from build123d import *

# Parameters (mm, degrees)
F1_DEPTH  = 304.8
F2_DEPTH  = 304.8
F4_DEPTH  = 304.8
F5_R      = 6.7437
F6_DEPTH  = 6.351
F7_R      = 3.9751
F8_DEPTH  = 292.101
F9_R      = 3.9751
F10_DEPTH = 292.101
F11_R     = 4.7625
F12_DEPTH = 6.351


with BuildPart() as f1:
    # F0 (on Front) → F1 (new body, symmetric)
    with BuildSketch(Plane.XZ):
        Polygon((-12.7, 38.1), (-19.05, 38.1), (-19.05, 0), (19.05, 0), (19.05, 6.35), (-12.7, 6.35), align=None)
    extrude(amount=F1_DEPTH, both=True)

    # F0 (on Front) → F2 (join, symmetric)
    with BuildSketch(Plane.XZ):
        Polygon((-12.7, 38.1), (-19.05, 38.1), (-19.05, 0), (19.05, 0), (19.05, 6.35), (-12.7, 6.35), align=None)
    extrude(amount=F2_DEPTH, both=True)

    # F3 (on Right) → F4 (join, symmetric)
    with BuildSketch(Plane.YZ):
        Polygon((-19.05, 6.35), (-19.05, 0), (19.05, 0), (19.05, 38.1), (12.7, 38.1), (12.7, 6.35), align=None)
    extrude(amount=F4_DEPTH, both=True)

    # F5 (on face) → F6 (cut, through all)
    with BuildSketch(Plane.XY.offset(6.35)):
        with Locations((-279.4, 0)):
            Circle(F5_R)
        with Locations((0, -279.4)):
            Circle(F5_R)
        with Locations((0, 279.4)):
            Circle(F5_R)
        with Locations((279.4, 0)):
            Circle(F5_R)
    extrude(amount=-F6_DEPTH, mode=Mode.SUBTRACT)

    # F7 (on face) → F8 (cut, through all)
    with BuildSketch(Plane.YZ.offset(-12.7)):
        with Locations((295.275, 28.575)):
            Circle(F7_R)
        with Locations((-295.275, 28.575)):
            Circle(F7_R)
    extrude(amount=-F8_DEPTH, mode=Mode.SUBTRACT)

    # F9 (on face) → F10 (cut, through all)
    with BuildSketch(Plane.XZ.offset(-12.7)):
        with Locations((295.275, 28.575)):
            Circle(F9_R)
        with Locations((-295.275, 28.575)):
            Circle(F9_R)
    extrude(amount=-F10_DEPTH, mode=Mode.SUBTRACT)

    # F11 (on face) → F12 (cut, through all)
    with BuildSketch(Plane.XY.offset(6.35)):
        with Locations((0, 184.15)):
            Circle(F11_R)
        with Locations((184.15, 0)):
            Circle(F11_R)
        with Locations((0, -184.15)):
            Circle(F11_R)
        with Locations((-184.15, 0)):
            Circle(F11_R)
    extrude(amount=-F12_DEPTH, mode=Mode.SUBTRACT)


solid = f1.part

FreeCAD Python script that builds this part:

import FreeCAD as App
import Part
import Sketcher
from FreeCAD import Vector
Q = App.Units.Quantity

doc = App.newDocument("Part")
body = doc.addObject("PartDesign::Body", "Body")

# Sketch on XZ plane
sketch1 = body.newObject("Sketcher::SketchObject", "Sketch")
sketch1.AttachmentSupport = (doc.getObject("XZ_Plane"), [""])
sketch1.MapMode = "FlatFace"
sketch1.addGeometry([
    Part.LineSegment(Vector(-12.7, 38.1, 0), Vector(-19.05, 38.1, 0)),  # 0
    Part.LineSegment(Vector(-19.05, 38.1, 0), Vector(-19.05, 0, 0)),  # 1
    Part.LineSegment(Vector(-19.05, 0, 0), Vector(19.05, 0, 0)),  # 2
    Part.LineSegment(Vector(19.05, 0, 0), Vector(19.05, 6.35, 0)),  # 3
    Part.LineSegment(Vector(19.05, 6.35, 0), Vector(-12.7, 6.35, 0)),  # 4
    Part.LineSegment(Vector(-12.7, 6.35, 0), Vector(-12.7, 38.1, 0)),  # 5
], False)
sketch1.addConstraint([
    Sketcher.Constraint("Coincident", 0, 2, 1, 1),
    Sketcher.Constraint("Coincident", 1, 2, 2, 1),
    Sketcher.Constraint("Coincident", 2, 2, 3, 1),
    Sketcher.Constraint("Coincident", 3, 2, 4, 1),
    Sketcher.Constraint("Coincident", 4, 2, 5, 1),
    Sketcher.Constraint("Coincident", 5, 2, 0, 1),
    Sketcher.Constraint("Horizontal", 0),
    Sketcher.Constraint("Vertical", 1),
    Sketcher.Constraint("Horizontal", 2),
    Sketcher.Constraint("Vertical", 3),
    Sketcher.Constraint("Horizontal", 4),
    Sketcher.Constraint("Vertical", 5),
    Sketcher.Constraint("Symmetric", 1, 2, 2, 2, -1, 1),
    Sketcher.Constraint("Equal", 2, 1),
    Sketcher.Constraint("Equal", 0, 3),
    Sketcher.Constraint("DistanceX", 2, 1, 2, 2, Q("1.5 in")),
    Sketcher.Constraint("DistanceX", 0, 2, 0, 1, Q("0.25 in")),
])
pad1 = body.newObject("PartDesign::Pad", "Pad")
pad1.Profile = sketch1
pad1.Length = Q("24 in")
pad1.Midplane = True

# Sketch on XZ plane
sketch2 = body.newObject("Sketcher::SketchObject", "Sketch001")
sketch2.AttachmentSupport = (doc.getObject("XZ_Plane"), [""])
sketch2.MapMode = "FlatFace"
sketch2.addGeometry([
    Part.LineSegment(Vector(-12.7, 38.1, 0), Vector(-19.05, 38.1, 0)),  # 0
    Part.LineSegment(Vector(-19.05, 38.1, 0), Vector(-19.05, 0, 0)),  # 1
    Part.LineSegment(Vector(-19.05, 0, 0), Vector(19.05, 0, 0)),  # 2
    Part.LineSegment(Vector(19.05, 0, 0), Vector(19.05, 6.35, 0)),  # 3
    Part.LineSegment(Vector(19.05, 6.35, 0), Vector(-12.7, 6.35, 0)),  # 4
    Part.LineSegment(Vector(-12.7, 6.35, 0), Vector(-12.7, 38.1, 0)),  # 5
], False)
sketch2.addConstraint([
    Sketcher.Constraint("Coincident", 0, 2, 1, 1),
    Sketcher.Constraint("Coincident", 1, 2, 2, 1),
    Sketcher.Constraint("Coincident", 2, 2, 3, 1),
    Sketcher.Constraint("Coincident", 3, 2, 4, 1),
    Sketcher.Constraint("Coincident", 4, 2, 5, 1),
    Sketcher.Constraint("Coincident", 5, 2, 0, 1),
    Sketcher.Constraint("Horizontal", 0),
    Sketcher.Constraint("Vertical", 1),
    Sketcher.Constraint("Horizontal", 2),
    Sketcher.Constraint("Vertical", 3),
    Sketcher.Constraint("Horizontal", 4),
    Sketcher.Constraint("Vertical", 5),
    Sketcher.Constraint("Symmetric", 1, 2, 2, 2, -1, 1),
    Sketcher.Constraint("Equal", 2, 1),
    Sketcher.Constraint("Equal", 0, 3),
    Sketcher.Constraint("DistanceX", 2, 1, 2, 2, Q("1.5 in")),
    Sketcher.Constraint("DistanceX", 0, 2, 0, 1, Q("0.25 in")),
])
pad2 = body.newObject("PartDesign::Pad", "Pad001")
pad2.Profile = sketch2
pad2.Length = Q("24 in")
pad2.Midplane = True

# Sketch on YZ plane
sketch3 = body.newObject("Sketcher::SketchObject", "Sketch002")
sketch3.AttachmentSupport = (doc.getObject("YZ_Plane"), [""])
sketch3.MapMode = "FlatFace"
sketch3.addGeometry([
    Part.LineSegment(Vector(-19.05, 6.35, 0), Vector(-19.05, 0, 0)),  # 0
    Part.LineSegment(Vector(-19.05, 0, 0), Vector(19.05, 0, 0)),  # 1
    Part.LineSegment(Vector(19.05, 0, 0), Vector(19.05, 38.1, 0)),  # 2
    Part.LineSegment(Vector(19.05, 38.1, 0), Vector(12.7, 38.1, 0)),  # 3
    Part.LineSegment(Vector(12.7, 38.1, 0), Vector(12.7, 6.35, 0)),  # 4
    Part.LineSegment(Vector(12.7, 6.35, 0), Vector(-19.05, 6.35, 0)),  # 5
], False)
sketch3.addConstraint([
    Sketcher.Constraint("Coincident", 0, 2, 1, 1),
    Sketcher.Constraint("Coincident", 1, 2, 2, 1),
    Sketcher.Constraint("Coincident", 2, 2, 3, 1),
    Sketcher.Constraint("Coincident", 3, 2, 4, 1),
    Sketcher.Constraint("Coincident", 4, 2, 5, 1),
    Sketcher.Constraint("Coincident", 5, 2, 0, 1),
    Sketcher.Constraint("Vertical", 0),
    Sketcher.Constraint("Horizontal", 1),
    Sketcher.Constraint("Vertical", 2),
    Sketcher.Constraint("Horizontal", 3),
    Sketcher.Constraint("Vertical", 4),
    Sketcher.Constraint("Horizontal", 5),
    Sketcher.Constraint("Symmetric", 0, 2, 1, 2, -1, 1),
    Sketcher.Constraint("Equal", 3, 0),
    Sketcher.Constraint("Equal", 1, 2),
    Sketcher.Constraint("DistanceX", 1, 1, 1, 2, Q("1.5 in")),
    Sketcher.Constraint("DistanceX", 3, 2, 3, 1, Q("0.25 in")),
])
pad3 = body.newObject("PartDesign::Pad", "Pad002")
pad3.Profile = sketch3
pad3.Length = Q("24 in")
pad3.Midplane = True

# Sketch on XY plane
sketch4 = body.newObject("Sketcher::SketchObject", "Sketch003")
sketch4.AttachmentSupport = (doc.getObject("XY_Plane"), [""])
sketch4.MapMode = "FlatFace"
sketch4.AttachmentOffset = App.Placement(Vector(0, 0, 0.25 * 25.4), App.Rotation())
sketch4.addGeometry([
    Part.Circle(Vector(-279.4, 0, 0), Vector(0, 0, 1), 6.7437),
    Part.Circle(Vector(0, -279.4, 0), Vector(0, 0, 1), 6.7437),
    Part.Circle(Vector(0, 279.4, 0), Vector(0, 0, 1), 6.7437),
    Part.Circle(Vector(279.4, 0, 0), Vector(0, 0, 1), 6.7437),
], False)
sketch4.addConstraint([
    Sketcher.Constraint("Equal", 0, 1),
    Sketcher.Constraint("Equal", 1, 2),
    Sketcher.Constraint("Equal", 2, 3),
    Sketcher.Constraint("Symmetric", 1, 3, 2, 3, -1, 1),
    Sketcher.Constraint("Symmetric", 0, 3, 3, 3, -1, 1),
    Sketcher.Constraint("PointOnObject", 0, 3, -1),
    Sketcher.Constraint("PointOnObject", 1, 3, -2),
    Sketcher.Constraint("Diameter", 0, Q("0.531 in")),
    Sketcher.Constraint("DistanceX", 0, 3, -1, 1, Q("11 in")),
    Sketcher.Constraint("DistanceY", 1, 3, -1, 1, Q("11 in")),
])
pocket1 = body.newObject("PartDesign::Pocket", "Pocket")
pocket1.Profile = sketch4
pocket1.Type = "ThroughAll"

# Sketch on YZ plane
sketch5 = body.newObject("Sketcher::SketchObject", "Sketch004")
sketch5.AttachmentSupport = (doc.getObject("YZ_Plane"), [""])
sketch5.MapMode = "FlatFace"
sketch5.AttachmentOffset = App.Placement(Vector(0, 0, -0.5 * 25.4), App.Rotation())
sketch5.addGeometry([
    Part.Circle(Vector(295.275, 28.575, 0), Vector(0, 0, 1), 3.9751),
    Part.Circle(Vector(-295.275, 28.575, 0), Vector(0, 0, 1), 3.9751),
], False)
sketch5.addConstraint([
    Sketcher.Constraint("Equal", 0, 1),
    Sketcher.Constraint("Symmetric", 0, 3, 1, 3, -2),
    Sketcher.Constraint("Diameter", 0, Q("0.313 in")),
    Sketcher.Constraint("DistanceX", 1, 3, 0, 3, Q("23.25 in")),
    Sketcher.Constraint("DistanceY", -1, 1, 0, 3, Q("1.125 in")),
])
pocket2 = body.newObject("PartDesign::Pocket", "Pocket001")
pocket2.Profile = sketch5
pocket2.Type = "ThroughAll"

# Sketch on XZ plane
sketch6 = body.newObject("Sketcher::SketchObject", "Sketch005")
sketch6.AttachmentSupport = (doc.getObject("XZ_Plane"), [""])
sketch6.MapMode = "FlatFace"
sketch6.AttachmentOffset = App.Placement(Vector(0, 0, -0.5 * 25.4), App.Rotation())
sketch6.addGeometry([
    Part.Circle(Vector(295.275, 28.575, 0), Vector(0, 0, 1), 3.9751),
    Part.Circle(Vector(-295.275, 28.575, 0), Vector(0, 0, 1), 3.9751),
], False)
sketch6.addConstraint([
    Sketcher.Constraint("Equal", 0, 1),
    Sketcher.Constraint("Symmetric", 0, 3, 1, 3, -2),
    Sketcher.Constraint("Diameter", 0, Q("0.313 in")),
    Sketcher.Constraint("DistanceX", 1, 3, 0, 3, Q("23.25 in")),
    Sketcher.Constraint("DistanceY", -1, 1, 0, 3, Q("1.125 in")),
])
pocket3 = body.newObject("PartDesign::Pocket", "Pocket002")
pocket3.Profile = sketch6
pocket3.Type = "ThroughAll"

# Sketch on XY plane
sketch7 = body.newObject("Sketcher::SketchObject", "Sketch006")
sketch7.AttachmentSupport = (doc.getObject("XY_Plane"), [""])
sketch7.MapMode = "FlatFace"
sketch7.AttachmentOffset = App.Placement(Vector(0, 0, 0.25 * 25.4), App.Rotation())
sketch7.addGeometry([
    Part.Circle(Vector(0, 184.15, 0), Vector(0, 0, 1), 4.7625),
    Part.Circle(Vector(184.15, 0, 0), Vector(0, 0, 1), 4.7625),
    Part.Circle(Vector(0, -184.15, 0), Vector(0, 0, 1), 4.7625),
    Part.Circle(Vector(-184.15, 0, 0), Vector(0, 0, 1), 4.7625),
], False)
sketch7.addConstraint([
    Sketcher.Constraint("Equal", 0, 1),
    Sketcher.Constraint("Equal", 1, 2),
    Sketcher.Constraint("Equal", 2, 3),
    Sketcher.Constraint("Symmetric", 0, 3, 2, 3, -1, 1),
    Sketcher.Constraint("Symmetric", 1, 3, 3, 3, -1, 1),
    Sketcher.Constraint("PointOnObject", 0, 3, -2),
    Sketcher.Constraint("PointOnObject", 1, 3, -1),
    Sketcher.Constraint("Diameter", 0, Q("0.375 in")),
    Sketcher.Constraint("DistanceY", 2, 3, 0, 3, Q("14.5 in")),
    Sketcher.Constraint("DistanceX", 3, 3, 1, 3, Q("14.5 in")),
])
pocket4 = body.newObject("PartDesign::Pocket", "Pocket003")
pocket4.Profile = sketch7
pocket4.Type = "ThroughAll"

doc.recompute()
